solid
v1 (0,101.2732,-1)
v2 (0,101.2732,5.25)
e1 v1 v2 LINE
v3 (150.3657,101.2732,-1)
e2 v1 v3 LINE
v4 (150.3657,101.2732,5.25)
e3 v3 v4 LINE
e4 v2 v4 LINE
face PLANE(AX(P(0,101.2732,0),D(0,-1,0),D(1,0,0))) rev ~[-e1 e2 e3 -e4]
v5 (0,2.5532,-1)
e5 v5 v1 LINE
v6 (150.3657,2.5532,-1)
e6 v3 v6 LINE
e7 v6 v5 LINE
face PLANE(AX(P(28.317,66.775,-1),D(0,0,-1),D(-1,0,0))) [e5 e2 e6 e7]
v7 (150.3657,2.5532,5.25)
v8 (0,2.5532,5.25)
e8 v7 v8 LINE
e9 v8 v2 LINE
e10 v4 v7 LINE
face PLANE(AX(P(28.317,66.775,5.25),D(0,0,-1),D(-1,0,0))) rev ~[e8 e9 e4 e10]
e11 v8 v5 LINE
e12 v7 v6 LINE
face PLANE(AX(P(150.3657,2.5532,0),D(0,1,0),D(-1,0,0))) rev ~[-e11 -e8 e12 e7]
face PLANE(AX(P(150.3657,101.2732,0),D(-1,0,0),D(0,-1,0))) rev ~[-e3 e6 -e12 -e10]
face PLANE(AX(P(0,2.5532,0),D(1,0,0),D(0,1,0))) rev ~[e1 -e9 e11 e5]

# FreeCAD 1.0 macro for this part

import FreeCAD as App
import Part
import Sketcher
from FreeCAD import Vector
Q = App.Units.Quantity

doc = App.newDocument("Part")
body = doc.addObject("PartDesign::Body", "Body")

# Sketch on XY plane
sketch1 = body.newObject("Sketcher::SketchObject", "Sketch")
sketch1.AttachmentSupport = (doc.getObject("XY_Plane"), [""])
sketch1.MapMode = "FlatFace"
sketch1.addGeometry(Part.LineSegment(Vector(150, 101, 0), Vector(150, 3, 0)), False)
sketch1.addGeometry(Part.LineSegment(Vector(150, 3, 0), Vector(0, 3, 0)), False)
sketch1.addGeometry(Part.LineSegment(Vector(0, 3, 0), Vector(0, 101, 0)), False)
sketch1.addGeometry(Part.LineSegment(Vector(0, 101, 0), Vector(150, 101, 0)), False)
sketch1.addConstraint(Sketcher.Constraint("Coincident", 0, 2, 1, 1))
sketch1.addConstraint(Sketcher.Constraint("Coincident", 1, 2, 2, 1))
sketch1.addConstraint(Sketcher.Constraint("Coincident", 2, 2, 3, 1))
sketch1.addConstraint(Sketcher.Constraint("Coincident", 3, 2, 0, 1))
sketch1.addConstraint(Sketcher.Constraint("Vertical", 0))
sketch1.addConstraint(Sketcher.Constraint("Horizontal", 1))
sketch1.addConstraint(Sketcher.Constraint("Vertical", 2))
sketch1.addConstraint(Sketcher.Constraint("Horizontal", 3))
sketch1.addConstraint(Sketcher.Constraint("PointOnObject", 1, 2, -2))
sketch1.addConstraint(Sketcher.Constraint("DistanceY", 0, 2, 0, 1, Q("98.72 mm")))
sketch1.addConstraint(Sketcher.Constraint("DistanceX", 1, 2, 1, 1, Q("150.3657 mm")))
sketch1.addConstraint(Sketcher.Constraint("DistanceY", -1, 1, 0, 2, Q("2.5532 mm")))
pad1 = body.newObject("PartDesign::Pad", "Pad")
pad1.Profile = sketch1
pad1.Type = "TwoLengths"
pad1.Length = 1
pad1.Length2 = 5.25
pad1.Reversed = True

doc.recompute()
